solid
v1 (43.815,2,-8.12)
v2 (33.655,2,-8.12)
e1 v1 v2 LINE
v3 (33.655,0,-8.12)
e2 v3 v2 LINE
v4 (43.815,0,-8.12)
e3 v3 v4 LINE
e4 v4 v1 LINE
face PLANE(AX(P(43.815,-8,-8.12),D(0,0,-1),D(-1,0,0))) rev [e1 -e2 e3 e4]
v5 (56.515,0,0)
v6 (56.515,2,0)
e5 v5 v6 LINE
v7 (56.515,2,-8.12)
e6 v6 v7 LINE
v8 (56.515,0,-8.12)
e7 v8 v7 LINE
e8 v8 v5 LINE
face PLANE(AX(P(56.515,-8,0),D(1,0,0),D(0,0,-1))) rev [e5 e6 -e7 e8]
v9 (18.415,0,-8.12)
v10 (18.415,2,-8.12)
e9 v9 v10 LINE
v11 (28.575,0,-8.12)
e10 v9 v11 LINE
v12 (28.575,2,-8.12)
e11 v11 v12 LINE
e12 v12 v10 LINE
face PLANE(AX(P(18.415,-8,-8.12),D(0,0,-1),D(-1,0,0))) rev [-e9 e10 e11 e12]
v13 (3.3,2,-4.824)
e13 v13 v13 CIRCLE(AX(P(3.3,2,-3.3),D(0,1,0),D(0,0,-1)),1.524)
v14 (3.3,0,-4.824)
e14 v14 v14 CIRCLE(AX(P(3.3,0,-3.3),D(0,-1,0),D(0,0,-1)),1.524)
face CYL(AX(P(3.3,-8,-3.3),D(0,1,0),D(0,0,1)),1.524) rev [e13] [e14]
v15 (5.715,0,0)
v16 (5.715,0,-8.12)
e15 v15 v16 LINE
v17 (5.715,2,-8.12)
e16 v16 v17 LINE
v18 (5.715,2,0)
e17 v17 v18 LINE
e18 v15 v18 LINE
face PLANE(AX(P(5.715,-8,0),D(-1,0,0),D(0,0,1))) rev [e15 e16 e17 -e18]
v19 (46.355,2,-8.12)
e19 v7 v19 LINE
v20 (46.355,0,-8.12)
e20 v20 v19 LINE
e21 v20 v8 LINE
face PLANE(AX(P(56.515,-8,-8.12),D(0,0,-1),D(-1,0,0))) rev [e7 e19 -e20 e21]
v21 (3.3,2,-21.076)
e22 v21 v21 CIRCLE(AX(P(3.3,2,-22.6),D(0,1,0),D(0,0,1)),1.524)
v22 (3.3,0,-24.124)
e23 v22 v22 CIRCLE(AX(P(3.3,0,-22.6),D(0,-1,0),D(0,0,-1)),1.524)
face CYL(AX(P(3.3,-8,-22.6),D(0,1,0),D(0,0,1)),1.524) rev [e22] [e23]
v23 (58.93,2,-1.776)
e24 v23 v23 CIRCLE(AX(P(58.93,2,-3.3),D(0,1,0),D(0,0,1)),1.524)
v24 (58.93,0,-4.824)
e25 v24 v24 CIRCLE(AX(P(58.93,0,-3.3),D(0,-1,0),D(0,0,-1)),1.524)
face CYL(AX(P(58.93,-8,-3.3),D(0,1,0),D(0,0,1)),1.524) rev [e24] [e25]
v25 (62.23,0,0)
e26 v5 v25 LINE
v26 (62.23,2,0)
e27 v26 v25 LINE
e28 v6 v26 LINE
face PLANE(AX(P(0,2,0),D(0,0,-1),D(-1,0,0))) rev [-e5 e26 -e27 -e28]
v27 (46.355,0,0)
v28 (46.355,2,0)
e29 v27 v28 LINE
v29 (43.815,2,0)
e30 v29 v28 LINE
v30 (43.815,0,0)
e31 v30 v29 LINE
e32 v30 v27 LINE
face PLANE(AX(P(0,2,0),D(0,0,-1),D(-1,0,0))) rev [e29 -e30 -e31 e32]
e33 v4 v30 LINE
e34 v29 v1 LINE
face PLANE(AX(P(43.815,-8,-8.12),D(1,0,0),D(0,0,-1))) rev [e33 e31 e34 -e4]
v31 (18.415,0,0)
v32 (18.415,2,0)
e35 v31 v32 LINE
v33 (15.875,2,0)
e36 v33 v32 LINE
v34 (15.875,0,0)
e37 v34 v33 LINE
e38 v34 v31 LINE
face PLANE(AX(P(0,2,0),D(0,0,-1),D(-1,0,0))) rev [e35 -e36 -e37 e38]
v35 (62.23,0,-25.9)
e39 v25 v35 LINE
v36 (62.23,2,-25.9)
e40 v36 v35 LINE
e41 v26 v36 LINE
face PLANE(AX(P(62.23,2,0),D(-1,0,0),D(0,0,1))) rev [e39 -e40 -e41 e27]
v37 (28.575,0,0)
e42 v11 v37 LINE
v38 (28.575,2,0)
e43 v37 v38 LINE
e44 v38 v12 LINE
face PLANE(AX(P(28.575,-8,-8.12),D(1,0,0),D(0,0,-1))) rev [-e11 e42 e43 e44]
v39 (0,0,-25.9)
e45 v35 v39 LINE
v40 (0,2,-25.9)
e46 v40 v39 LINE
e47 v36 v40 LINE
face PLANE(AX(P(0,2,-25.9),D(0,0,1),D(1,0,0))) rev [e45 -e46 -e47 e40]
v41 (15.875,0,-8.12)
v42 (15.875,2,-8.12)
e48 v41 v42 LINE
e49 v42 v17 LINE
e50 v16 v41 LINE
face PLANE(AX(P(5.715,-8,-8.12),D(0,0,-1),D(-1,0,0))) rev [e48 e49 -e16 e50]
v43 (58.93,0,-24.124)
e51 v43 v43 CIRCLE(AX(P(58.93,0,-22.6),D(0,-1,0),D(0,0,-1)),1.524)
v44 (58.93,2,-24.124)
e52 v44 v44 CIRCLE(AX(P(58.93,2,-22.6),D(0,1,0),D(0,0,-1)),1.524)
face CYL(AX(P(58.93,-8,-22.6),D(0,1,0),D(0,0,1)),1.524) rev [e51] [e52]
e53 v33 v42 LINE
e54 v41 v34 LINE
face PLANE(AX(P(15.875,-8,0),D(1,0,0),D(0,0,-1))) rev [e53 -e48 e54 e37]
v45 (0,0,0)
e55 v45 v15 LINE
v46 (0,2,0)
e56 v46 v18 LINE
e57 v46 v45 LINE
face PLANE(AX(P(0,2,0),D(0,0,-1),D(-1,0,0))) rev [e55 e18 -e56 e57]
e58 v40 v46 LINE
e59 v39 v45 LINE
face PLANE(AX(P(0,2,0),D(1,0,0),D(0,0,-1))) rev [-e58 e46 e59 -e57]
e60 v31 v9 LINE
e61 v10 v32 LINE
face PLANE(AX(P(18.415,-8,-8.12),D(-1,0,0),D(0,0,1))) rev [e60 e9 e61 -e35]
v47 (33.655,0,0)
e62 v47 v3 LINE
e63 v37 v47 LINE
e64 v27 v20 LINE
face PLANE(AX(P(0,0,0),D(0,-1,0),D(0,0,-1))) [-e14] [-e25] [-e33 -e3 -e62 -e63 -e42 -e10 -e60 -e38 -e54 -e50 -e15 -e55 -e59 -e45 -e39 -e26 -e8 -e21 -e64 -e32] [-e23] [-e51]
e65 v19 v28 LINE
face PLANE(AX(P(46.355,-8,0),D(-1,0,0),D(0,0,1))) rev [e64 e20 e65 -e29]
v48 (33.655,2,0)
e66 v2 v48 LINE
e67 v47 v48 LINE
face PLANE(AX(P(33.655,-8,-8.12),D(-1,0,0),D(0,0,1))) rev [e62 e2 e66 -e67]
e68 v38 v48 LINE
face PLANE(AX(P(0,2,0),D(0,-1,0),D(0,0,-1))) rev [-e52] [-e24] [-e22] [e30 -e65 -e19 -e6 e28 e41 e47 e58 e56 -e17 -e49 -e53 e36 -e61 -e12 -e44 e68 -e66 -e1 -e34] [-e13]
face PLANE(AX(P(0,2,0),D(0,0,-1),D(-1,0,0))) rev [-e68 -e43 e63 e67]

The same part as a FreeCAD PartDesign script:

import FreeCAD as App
import Part
import Sketcher

V = App.Vector
Q = App.Units.Quantity

doc = App.newDocument("Part")
body = doc.addObject("PartDesign::Body", "Body")

# Sketch on XZ plane
sketch1 = body.newObject("Sketcher::SketchObject", "Sketch")
sketch1.AttachmentSupport = (doc.getObject("XZ_Plane"), [""])
sketch1.MapMode = "FlatFace"
sketch1.addGeometry([
    Part.LineSegment(V(0, -26, 0), V(0, 0, 0)),
    Part.LineSegment(V(0, 0, 0), V(62, 0, 0)),
    Part.LineSegment(V(62, 0, 0), V(62, -26, 0)),
    Part.LineSegment(V(62, -26, 0), V(0, -26, 0)),
], False)
sketch1.addConstraint([
    Sketcher.Constraint("Coincident", 0, 2, 1, 1),
    Sketcher.Constraint("Coincident", 1, 2, 2, 1),
    Sketcher.Constraint("Coincident", 2, 2, 3, 1),
    Sketcher.Constraint("Coincident", 3, 2, 0, 1),
    Sketcher.Constraint("Vertical", 0),
    Sketcher.Constraint("Horizontal", 1),
    Sketcher.Constraint("Vertical", 2),
    Sketcher.Constraint("Horizontal", 3),
    Sketcher.Constraint("Coincident", 0, 2, -1, 1),
    Sketcher.Constraint("DistanceY", 0, 1, 0, 2, Q("25.9 mm")),
    Sketcher.Constraint("DistanceX", 1, 1, 1, 2, Q("62.23 mm")),
])
pad1 = body.newObject("PartDesign::Pad", "Pad")
pad1.Profile = sketch1
pad1.Length = 2
pad1.Reversed = True

# Sketch on XZ plane
sketch2 = body.newObject("Sketcher::SketchObject", "Sketch001")
sketch2.AttachmentSupport = (doc.getObject("XZ_Plane"), [""])
sketch2.MapMode = "FlatFace"
sketch2.AttachmentOffset = App.Placement(V(0, 0, -2), App.Rotation())
sketch2.addGeometry([
    Part.Circle(V(3.3, -22.6, 0), V(0, 0, 1), 1.5),  # 0
    Part.Circle(V(3.3, -3.3, 0), V(0, 0, 1), 1.5),  # 1
    Part.Circle(V(58.9, -3.3, 0), V(0, 0, 1), 1.5),  # 2
    Part.Circle(V(58.9, -22.6, 0), V(0, 0, 1), 1.5),  # 3
    Part.LineSegment(V(33.7, -8.1, 0), V(33.7, 0, 0)),  # 4
    Part.LineSegment(V(33.7, 0, 0), V(43.8, 0, 0)),  # 5
    Part.LineSegment(V(43.8, 0, 0), V(43.8, -8.1, 0)),  # 6
    Part.LineSegment(V(43.8, -8.1, 0), V(33.7, -8.1, 0)),  # 7
    Part.LineSegment(V(5.7, -8.1, 0), V(5.7, 0, 0)),  # 8
    Part.LineSegment(V(5.7, 0, 0), V(15.9, 0, 0)),  # 9
    Part.LineSegment(V(15.9, 0, 0), V(15.9, -8.1, 0)),  # 10
    Part.LineSegment(V(15.9, -8.1, 0), V(5.7, -8.1, 0)),  # 11
    Part.LineSegment(V(46.4, -8.1, 0), V(46.4, 0, 0)),  # 12
    Part.LineSegment(V(46.4, 0, 0), V(56.5, 0, 0)),  # 13
    Part.LineSegment(V(56.5, 0, 0), V(56.5, -8.1, 0)),  # 14
    Part.LineSegment(V(56.5, -8.1, 0), V(46.4, -8.1, 0)),  # 15
    Part.LineSegment(V(18.4, -8.1, 0), V(18.4, 0, 0)),  # 16
    Part.LineSegment(V(18.4, 0, 0), V(28.6, 0, 0)),  # 17
    Part.LineSegment(V(28.6, 0, 0), V(28.6, -8.1, 0)),  # 18
    Part.LineSegment(V(28.6, -8.1, 0), V(18.4, -8.1, 0)),  # 19
], False)
sketch2.addConstraint([
    Sketcher.Constraint("Coincident", 4, 2, 5, 1),
    Sketcher.Constraint("Coincident", 5, 2, 6, 1),
    Sketcher.Constraint("Coincident", 6, 2, 7, 1),
    Sketcher.Constraint("Coincident", 7, 2, 4, 1),
    Sketcher.Constraint("Coincident", 8, 2, 9, 1),
    Sketcher.Constraint("Coincident", 9, 2, 10, 1),
    Sketcher.Constraint("Coincident", 10, 2, 11, 1),
    Sketcher.Constraint("Coincident", 11, 2, 8, 1),
    Sketcher.Constraint("Coincident", 12, 2, 13, 1),
    Sketcher.Constraint("Coincident", 13, 2, 14, 1),
    Sketcher.Constraint("Coincident", 14, 2, 15, 1),
    Sketcher.Constraint("Coincident", 15, 2, 12, 1),
    Sketcher.Constraint("Coincident", 16, 2, 17, 1),
    Sketcher.Constraint("Coincident", 17, 2, 18, 1),
    Sketcher.Constraint("Coincident", 18, 2, 19, 1),
    Sketcher.Constraint("Coincident", 19, 2, 16, 1),
    Sketcher.Constraint("Vertical", 4),
    Sketcher.Constraint("Horizontal", 5),
    Sketcher.Constraint("Vertical", 6),
    Sketcher.Constraint("Horizontal", 7),
    Sketcher.Constraint("Vertical", 8),
    Sketcher.Constraint("Horizontal", 9),
    Sketcher.Constraint("Vertical", 10),
    Sketcher.Constraint("Horizontal", 11),
    Sketcher.Constraint("Vertical", 12),
    Sketcher.Constraint("Horizontal", 13),
    Sketcher.Constraint("Vertical", 14),
    Sketcher.Constraint("Horizontal", 15),
    Sketcher.Constraint("Vertical", 16),
    Sketcher.Constraint("Horizontal", 17),
    Sketcher.Constraint("Vertical", 18),
    Sketcher.Constraint("Horizontal", 19),
    Sketcher.Constraint("Equal", 0, 1),
    Sketcher.Constraint("Equal", 1, 2),
    Sketcher.Constraint("Equal", 2, 3),
    Sketcher.Constraint("PointOnObject", 4, 2, -1),
    Sketcher.Constraint("PointOnObject", 8, 2, -1),
    Sketcher.Constraint("PointOnObject", 12, 2, -1),
    Sketcher.Constraint("PointOnObject", 16, 2, -1),
    Sketcher.Constraint("Horizontal", 1, 3, 2, 3),
    Sketcher.Constraint("Horizontal", 0, 3, 3, 3),
    Sketcher.Constraint("Horizontal", 7, 2, 10, 2),
    Sketcher.Constraint("Horizontal", 11, 2, 14, 2),
    Sketcher.Constraint("Horizontal", 15, 2, 18, 2),
    Sketcher.Constraint("Vertical", 0, 3, 1, 3),
    Sketcher.Constraint("Vertical", 2, 3, 3, 3),
    Sketcher.Constraint("Equal", 7, 9),
    Sketcher.Constraint("Equal", 11, 13),
    Sketcher.Constraint("Equal", 15, 17),
    Sketcher.Constraint("Diameter", 0, Q("3.048 mm")),
    Sketcher.Constraint("DistanceX", 5, 1, 5, 2, Q("10.16 mm")),
    Sketcher.Constraint("DistanceY", 4, 1, 4, 2, Q("8.12 mm")),
    Sketcher.Constraint("DistanceX", -1, 1, 0, 3, Q("3.3 mm")),
    Sketcher.Constraint("DistanceY", 0, 3, -1, 1, Q("22.6 mm")),
    Sketcher.Constraint("DistanceY", 1, 3, -1, 1, Q("3.3 mm")),
    Sketcher.Constraint("DistanceX", 8, 2, 5, 2, Q("38.1 mm")),
    Sketcher.Constraint("DistanceX", 4, 2, 12, 2, Q("12.7 mm")),
    Sketcher.Constraint("DistanceX", 8, 2, 16, 2, Q("12.7 mm")),
    Sketcher.Constraint("DistanceX", -1, 1, 2, 3, Q("58.93 mm")),
    Sketcher.Constraint("DistanceX", -1, 1, 4, 2, Q("33.655 mm")),
])
pocket1 = body.newObject("PartDesign::Pocket", "Pocket")
pocket1.Profile = sketch2
pocket1.Length = 10
pocket1.Reversed = True

doc.recompute()
